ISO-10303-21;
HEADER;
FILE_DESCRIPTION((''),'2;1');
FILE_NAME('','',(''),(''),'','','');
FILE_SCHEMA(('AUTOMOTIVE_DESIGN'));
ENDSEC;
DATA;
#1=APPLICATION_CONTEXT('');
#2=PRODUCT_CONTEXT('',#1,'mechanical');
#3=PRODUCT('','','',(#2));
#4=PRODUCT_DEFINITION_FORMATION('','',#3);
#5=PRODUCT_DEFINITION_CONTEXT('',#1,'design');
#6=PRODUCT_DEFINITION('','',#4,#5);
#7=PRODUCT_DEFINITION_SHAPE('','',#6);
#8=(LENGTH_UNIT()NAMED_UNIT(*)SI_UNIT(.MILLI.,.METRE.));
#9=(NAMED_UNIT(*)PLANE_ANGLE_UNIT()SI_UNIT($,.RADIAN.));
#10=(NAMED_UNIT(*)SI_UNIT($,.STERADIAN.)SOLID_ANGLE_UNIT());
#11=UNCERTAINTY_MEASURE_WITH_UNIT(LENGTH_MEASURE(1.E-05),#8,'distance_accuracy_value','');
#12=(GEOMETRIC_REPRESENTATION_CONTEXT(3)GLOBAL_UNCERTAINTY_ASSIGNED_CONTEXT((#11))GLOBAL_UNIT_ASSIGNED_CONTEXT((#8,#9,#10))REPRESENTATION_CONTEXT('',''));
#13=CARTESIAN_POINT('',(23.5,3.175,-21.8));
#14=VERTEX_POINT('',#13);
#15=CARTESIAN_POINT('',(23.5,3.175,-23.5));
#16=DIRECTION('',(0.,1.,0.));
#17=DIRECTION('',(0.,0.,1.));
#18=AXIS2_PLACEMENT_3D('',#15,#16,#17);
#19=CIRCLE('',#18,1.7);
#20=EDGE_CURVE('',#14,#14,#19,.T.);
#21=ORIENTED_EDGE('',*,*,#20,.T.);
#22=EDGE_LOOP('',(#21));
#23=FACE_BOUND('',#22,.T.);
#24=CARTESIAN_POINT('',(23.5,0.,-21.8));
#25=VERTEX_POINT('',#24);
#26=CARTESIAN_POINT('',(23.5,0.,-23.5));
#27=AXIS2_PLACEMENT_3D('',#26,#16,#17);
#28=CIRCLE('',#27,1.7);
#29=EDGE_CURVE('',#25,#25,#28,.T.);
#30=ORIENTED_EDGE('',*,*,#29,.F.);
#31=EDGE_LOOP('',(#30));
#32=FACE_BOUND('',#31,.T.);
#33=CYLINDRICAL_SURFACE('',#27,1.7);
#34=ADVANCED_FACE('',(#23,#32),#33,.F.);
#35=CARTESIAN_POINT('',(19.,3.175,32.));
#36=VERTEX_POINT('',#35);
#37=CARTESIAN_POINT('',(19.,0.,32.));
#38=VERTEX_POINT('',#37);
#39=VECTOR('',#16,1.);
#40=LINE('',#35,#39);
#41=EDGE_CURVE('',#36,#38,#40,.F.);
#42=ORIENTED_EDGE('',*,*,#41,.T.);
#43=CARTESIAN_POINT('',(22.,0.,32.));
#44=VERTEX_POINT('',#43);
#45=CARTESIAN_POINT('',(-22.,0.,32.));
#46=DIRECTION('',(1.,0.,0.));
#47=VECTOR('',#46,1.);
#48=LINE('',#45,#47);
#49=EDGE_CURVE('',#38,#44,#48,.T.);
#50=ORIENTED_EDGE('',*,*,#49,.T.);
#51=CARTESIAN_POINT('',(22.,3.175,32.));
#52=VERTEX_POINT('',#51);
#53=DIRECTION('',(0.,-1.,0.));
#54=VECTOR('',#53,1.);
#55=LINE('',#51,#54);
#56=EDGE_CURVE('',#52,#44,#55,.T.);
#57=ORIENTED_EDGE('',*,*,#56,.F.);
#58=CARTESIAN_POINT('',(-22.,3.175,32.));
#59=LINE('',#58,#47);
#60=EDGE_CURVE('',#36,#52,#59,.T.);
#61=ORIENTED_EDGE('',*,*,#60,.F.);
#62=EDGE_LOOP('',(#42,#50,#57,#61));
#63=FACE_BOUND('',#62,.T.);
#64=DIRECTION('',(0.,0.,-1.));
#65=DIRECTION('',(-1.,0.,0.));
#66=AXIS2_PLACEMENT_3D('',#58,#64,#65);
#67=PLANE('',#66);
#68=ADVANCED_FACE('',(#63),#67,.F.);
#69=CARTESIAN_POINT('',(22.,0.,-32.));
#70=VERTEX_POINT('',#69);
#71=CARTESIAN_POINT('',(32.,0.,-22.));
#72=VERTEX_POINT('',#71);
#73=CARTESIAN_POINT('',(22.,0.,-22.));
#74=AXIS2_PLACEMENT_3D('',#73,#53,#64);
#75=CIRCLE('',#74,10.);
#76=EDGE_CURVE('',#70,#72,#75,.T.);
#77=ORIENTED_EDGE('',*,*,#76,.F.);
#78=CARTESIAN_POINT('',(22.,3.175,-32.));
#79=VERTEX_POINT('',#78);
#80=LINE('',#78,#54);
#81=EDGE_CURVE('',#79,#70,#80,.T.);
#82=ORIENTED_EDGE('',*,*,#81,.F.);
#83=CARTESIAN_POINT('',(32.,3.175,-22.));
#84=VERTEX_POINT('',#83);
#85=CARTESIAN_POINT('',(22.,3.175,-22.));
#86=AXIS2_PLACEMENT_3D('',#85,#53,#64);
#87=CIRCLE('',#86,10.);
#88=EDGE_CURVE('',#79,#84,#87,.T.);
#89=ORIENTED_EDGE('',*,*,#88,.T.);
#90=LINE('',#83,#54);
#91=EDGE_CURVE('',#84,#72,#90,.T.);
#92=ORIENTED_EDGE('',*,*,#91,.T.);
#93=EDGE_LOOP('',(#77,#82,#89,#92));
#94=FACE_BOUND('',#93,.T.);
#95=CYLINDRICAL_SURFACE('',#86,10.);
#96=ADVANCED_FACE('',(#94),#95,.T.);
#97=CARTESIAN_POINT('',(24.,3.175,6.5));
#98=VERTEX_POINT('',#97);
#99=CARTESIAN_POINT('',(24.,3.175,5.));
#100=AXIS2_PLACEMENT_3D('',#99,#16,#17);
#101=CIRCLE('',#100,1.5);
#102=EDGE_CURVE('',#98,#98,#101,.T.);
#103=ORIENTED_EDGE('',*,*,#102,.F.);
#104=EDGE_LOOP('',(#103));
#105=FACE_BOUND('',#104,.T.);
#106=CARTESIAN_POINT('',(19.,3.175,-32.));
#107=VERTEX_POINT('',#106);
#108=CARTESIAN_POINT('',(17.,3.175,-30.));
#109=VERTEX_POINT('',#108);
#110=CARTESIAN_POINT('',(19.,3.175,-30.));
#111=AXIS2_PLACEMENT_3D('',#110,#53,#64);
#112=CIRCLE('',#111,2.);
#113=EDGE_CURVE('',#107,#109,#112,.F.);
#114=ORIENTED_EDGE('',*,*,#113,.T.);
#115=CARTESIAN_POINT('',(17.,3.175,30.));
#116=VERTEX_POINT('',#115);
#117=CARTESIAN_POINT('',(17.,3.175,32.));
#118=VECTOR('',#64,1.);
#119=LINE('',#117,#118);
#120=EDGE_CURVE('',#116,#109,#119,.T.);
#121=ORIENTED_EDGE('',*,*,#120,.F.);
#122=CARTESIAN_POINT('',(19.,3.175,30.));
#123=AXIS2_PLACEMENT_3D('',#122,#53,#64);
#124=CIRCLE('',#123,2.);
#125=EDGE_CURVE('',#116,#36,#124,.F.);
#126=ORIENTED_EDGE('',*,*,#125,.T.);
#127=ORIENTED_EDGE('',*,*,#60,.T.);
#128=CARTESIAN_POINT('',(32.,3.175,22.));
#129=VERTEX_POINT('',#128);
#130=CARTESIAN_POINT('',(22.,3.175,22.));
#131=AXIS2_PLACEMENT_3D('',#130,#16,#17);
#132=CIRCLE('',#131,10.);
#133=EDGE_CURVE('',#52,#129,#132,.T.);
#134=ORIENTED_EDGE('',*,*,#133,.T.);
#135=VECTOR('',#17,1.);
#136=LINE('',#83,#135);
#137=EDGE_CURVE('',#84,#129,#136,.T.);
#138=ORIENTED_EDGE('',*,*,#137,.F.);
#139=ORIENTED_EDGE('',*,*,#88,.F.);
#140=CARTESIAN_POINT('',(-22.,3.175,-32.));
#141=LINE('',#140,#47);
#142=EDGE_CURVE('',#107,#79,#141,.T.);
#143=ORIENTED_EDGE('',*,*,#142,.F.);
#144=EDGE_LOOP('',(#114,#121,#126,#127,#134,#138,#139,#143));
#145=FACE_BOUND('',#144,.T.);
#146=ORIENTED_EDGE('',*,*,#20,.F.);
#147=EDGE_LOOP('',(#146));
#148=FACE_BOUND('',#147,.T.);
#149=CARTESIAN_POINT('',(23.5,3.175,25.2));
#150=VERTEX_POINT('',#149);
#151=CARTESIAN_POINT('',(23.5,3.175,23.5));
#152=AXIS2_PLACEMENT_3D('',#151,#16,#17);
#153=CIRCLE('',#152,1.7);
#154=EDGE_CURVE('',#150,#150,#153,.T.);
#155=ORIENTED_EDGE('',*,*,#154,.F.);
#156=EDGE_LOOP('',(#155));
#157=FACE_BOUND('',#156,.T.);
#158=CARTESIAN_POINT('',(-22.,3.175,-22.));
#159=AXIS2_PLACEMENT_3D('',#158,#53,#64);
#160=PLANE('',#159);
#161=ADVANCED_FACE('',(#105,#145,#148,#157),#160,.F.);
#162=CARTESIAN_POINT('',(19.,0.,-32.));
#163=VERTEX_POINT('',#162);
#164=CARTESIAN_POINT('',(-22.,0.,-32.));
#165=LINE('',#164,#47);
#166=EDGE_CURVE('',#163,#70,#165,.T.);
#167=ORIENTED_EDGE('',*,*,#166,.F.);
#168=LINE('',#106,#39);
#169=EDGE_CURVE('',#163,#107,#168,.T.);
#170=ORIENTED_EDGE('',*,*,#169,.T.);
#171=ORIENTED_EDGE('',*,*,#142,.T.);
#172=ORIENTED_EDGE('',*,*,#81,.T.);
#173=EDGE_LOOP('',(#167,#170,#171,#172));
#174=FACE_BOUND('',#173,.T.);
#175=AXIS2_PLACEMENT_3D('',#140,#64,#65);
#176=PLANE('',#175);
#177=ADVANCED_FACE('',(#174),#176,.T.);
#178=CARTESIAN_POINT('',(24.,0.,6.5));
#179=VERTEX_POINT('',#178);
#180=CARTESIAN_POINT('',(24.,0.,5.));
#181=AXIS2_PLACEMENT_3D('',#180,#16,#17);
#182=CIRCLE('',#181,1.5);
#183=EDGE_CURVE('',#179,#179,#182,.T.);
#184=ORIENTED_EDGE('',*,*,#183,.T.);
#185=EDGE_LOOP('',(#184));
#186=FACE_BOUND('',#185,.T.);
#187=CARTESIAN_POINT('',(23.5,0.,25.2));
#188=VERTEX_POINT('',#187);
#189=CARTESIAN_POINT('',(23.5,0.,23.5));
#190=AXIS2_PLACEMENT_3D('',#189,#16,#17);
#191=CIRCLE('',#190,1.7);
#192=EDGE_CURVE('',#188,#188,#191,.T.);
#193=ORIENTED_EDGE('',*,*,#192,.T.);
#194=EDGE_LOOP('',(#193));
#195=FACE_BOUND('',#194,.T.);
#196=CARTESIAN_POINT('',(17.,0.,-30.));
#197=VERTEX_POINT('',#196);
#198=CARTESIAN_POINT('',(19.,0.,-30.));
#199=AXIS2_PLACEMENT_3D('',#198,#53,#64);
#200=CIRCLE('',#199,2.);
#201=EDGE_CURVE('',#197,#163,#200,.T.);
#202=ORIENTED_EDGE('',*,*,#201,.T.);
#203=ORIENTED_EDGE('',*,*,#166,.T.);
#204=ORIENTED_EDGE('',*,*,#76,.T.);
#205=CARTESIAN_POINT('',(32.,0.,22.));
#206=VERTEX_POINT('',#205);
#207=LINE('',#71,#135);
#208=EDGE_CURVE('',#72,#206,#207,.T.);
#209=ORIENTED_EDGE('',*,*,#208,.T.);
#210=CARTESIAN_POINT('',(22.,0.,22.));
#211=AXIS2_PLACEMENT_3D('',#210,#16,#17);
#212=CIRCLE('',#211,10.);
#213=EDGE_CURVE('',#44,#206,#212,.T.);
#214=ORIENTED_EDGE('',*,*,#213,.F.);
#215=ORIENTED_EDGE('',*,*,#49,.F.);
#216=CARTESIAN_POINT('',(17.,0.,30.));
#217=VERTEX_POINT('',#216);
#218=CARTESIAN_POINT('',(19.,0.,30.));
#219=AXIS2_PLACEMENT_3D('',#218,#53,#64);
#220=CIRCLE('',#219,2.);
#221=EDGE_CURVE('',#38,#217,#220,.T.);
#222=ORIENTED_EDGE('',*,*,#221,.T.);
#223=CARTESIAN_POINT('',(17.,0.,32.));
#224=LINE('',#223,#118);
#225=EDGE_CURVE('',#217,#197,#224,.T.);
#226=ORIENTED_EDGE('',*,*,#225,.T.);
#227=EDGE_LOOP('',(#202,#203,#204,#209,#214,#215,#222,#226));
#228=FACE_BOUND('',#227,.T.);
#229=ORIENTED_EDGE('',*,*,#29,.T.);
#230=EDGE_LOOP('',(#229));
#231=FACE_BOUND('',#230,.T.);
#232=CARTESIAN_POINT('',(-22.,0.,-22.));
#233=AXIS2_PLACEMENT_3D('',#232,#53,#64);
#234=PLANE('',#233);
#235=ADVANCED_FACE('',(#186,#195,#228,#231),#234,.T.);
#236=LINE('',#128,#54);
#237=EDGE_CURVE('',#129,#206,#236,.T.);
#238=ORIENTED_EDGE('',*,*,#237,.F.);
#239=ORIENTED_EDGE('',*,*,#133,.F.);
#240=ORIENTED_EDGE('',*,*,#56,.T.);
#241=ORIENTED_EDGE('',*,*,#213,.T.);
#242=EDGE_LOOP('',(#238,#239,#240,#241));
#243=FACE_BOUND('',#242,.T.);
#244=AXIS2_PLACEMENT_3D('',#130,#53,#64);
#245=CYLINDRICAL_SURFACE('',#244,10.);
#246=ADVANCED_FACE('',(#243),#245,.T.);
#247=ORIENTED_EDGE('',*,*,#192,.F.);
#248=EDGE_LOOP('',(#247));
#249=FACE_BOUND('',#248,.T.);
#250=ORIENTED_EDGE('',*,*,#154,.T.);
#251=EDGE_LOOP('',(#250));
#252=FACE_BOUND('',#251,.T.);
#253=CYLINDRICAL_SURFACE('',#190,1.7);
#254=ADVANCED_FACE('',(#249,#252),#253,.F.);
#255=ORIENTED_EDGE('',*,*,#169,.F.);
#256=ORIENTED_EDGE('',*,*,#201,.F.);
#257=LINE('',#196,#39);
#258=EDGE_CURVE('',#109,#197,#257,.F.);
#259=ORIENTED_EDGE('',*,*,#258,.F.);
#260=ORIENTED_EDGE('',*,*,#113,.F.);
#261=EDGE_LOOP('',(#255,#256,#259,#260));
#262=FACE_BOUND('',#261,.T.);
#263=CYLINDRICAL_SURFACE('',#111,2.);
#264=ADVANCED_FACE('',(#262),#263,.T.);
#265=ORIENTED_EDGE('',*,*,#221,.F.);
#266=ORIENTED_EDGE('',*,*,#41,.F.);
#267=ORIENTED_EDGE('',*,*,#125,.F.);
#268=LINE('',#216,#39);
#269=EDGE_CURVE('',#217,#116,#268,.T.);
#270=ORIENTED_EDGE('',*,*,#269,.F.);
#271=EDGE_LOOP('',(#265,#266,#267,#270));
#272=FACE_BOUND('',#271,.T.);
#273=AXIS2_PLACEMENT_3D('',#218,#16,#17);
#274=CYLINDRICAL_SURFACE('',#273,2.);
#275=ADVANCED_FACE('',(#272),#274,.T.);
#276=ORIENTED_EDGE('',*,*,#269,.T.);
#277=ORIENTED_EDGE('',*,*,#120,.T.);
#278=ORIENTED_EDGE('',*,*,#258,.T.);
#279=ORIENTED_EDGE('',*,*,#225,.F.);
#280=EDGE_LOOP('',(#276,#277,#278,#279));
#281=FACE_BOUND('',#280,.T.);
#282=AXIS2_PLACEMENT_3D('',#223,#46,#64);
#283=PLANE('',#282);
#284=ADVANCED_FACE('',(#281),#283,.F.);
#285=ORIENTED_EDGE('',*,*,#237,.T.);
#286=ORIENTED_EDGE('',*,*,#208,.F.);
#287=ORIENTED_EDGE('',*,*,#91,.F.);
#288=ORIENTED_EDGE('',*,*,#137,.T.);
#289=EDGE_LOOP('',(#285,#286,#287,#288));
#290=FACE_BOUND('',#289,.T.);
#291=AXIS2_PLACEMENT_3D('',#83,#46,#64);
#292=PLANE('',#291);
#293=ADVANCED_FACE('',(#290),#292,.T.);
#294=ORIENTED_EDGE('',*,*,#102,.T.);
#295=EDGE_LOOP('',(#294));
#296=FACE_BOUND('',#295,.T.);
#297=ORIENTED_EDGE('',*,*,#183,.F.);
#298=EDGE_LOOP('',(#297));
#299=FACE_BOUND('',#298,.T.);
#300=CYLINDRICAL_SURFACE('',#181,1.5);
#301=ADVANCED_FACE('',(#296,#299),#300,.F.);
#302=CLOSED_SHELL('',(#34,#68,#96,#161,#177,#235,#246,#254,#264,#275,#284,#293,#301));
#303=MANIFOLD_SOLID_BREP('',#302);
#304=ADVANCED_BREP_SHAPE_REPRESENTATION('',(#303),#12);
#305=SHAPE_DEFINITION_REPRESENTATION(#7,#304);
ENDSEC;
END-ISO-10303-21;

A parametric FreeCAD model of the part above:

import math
import FreeCAD as App
import Part
import Sketcher

V = App.Vector
Q = App.Units.Quantity


def edges_at(feature, points):
    """Names of the edges that pass closest to the given points."""
    edges = feature.Shape.Edges
    near = lambda p: min(range(len(edges)), key=lambda i: edges[i].distToShape(Part.Vertex(*p))[0])
    return sorted({f"Edge{near(p) + 1}" for p in points})


def add_polygon(sketch, points):
    """Adds a closed chain of lines whose ends are joined by coincident constraints."""
    first, n = sketch.GeometryCount, len(points)
    for a, b in zip(points, points[1:] + points[:1]):
        sketch.addGeometry(Part.LineSegment(App.Vector(*a, 0), App.Vector(*b, 0)), False)
    for i in range(n):
        sketch.addConstraint(Sketcher.Constraint("Coincident", first + i, 2, first + (i + 1) % n, 1))

doc = App.newDocument("Part")
body = doc.addObject("PartDesign::Body", "Body")

sketch1 = body.newObject("Sketcher::SketchObject", "Sketch")
sketch1.AttachmentSupport = (doc.getObject("XZ_Plane"), [""])
sketch1.MapMode = "FlatFace"
sketch1.addGeometry([
    Part.LineSegment(V(22, -32, 0), V(-22, -32, 0)),
    Part.ArcOfCircle(Part.Circle(V(-22, -22, 0), V(0, 0, 1), 10), math.radians(180), math.radians(270)),
    Part.LineSegment(V(-32, -22, 0), V(-32, 22, 0)),
    Part.ArcOfCircle(Part.Circle(V(-22, 22, 0), V(0, 0, 1), 10), math.radians(90), math.radians(180)),
    Part.LineSegment(V(-22, 32, 0), V(22, 32, 0)),
    Part.ArcOfCircle(Part.Circle(V(22, 22, 0), V(0, 0, 1), 10), math.radians(0), math.radians(90)),
    Part.LineSegment(V(32, 22, 0), V(32, -22, 0)),
    Part.ArcOfCircle(Part.Circle(V(22, -22, 0), V(0, 0, 1), 10), math.radians(-90), math.radians(0)),
], False)
sketch1.addConstraint([
    Sketcher.Constraint("Tangent", 0, 2, 1, 2),
    Sketcher.Constraint("Tangent", 1, 1, 2, 1),
    Sketcher.Constraint("Tangent", 2, 2, 3, 2),
    Sketcher.Constraint("Tangent", 3, 1, 4, 1),
    Sketcher.Constraint("Tangent", 4, 2, 5, 2),
    Sketcher.Constraint("Tangent", 5, 1, 6, 1),
    Sketcher.Constraint("Tangent", 6, 2, 7, 2),
    Sketcher.Constraint("Tangent", 7, 1, 0, 1),
    Sketcher.Constraint("Horizontal", 0),
    Sketcher.Constraint("Vertical", 2),
    Sketcher.Constraint("Horizontal", 4),
    Sketcher.Constraint("Vertical", 6),
    Sketcher.Constraint("Equal", 1, 3),
    Sketcher.Constraint("Equal", 3, 5),
    Sketcher.Constraint("Equal", 5, 7),
    Sketcher.Constraint("Symmetric", 1, 3, 5, 3, -1, 1),
    Sketcher.Constraint("Equal", 4, 2),
    Sketcher.Constraint("Radius", 1, Q("10 mm")),
    Sketcher.Constraint("DistanceX", 0, 2, 0, 1, Q("44 mm")),
])
pad1 = body.newObject("PartDesign::Pad", "Pad")
pad1.Profile = sketch1
pad1.Length = 3.175
pad1.Reversed = True

sketch2 = body.newObject("Sketcher::SketchObject", "Sketch001")
sketch2.AttachmentSupport = (doc.getObject("XZ_Plane"), [""])
sketch2.MapMode = "FlatFace"
sketch2.AttachmentOffset = App.Placement(V(0, 0, -3.175), App.Rotation())
sketch2.addGeometry([
    Part.Circle(V(-23.5, -23.5, 0), V(0, 0, 1), 1.7),
    Part.Circle(V(23.5, -23.5, 0), V(0, 0, 1), 1.7),
    Part.Circle(V(23.5, 23.5, 0), V(0, 0, 1), 1.7),
    Part.Circle(V(-23.5, 23.5, 0), V(0, 0, 1), 1.7),
], False)
sketch2.addConstraint([
    Sketcher.Constraint("Equal", 0, 1),
    Sketcher.Constraint("Equal", 1, 2),
    Sketcher.Constraint("Equal", 2, 3),
    Sketcher.Constraint("Symmetric", 0, 3, 2, 3, -1, 1),
    Sketcher.Constraint("Symmetric", 1, 3, 3, 3, -1, 1),
    Sketcher.Constraint("Symmetric", 0, 3, 1, 3, -2),
    Sketcher.Constraint("Diameter", 0, Q("3.4 mm")),
    Sketcher.Constraint("DistanceX", 0, 3, 1, 3, Q("47 mm")),
    Sketcher.Constraint("DistanceY", 1, 3, 2, 3, Q("47 mm")),
])
pocket1 = body.newObject("PartDesign::Pocket", "Pocket")
pocket1.Profile = sketch2
pocket1.Length = 3.175
pocket1.Reversed = True

sketch3 = body.newObject("Sketcher::SketchObject", "Sketch002")
sketch3.AttachmentSupport = (doc.getObject("XZ_Plane"), [""])
sketch3.MapMode = "FlatFace"
sketch3.AttachmentOffset = App.Placement(V(0, 0, -3.175), App.Rotation())
sketch3.addGeometry([
    Part.Circle(V(24, 5, 0), V(0, 0, 1), 1.5),
    Part.Circle(V(-24, 5, 0), V(0, 0, 1), 1.5),
], False)
sketch3.addConstraint([
    Sketcher.Constraint("Equal", 0, 1),
    Sketcher.Constraint("Symmetric", 0, 3, 1, 3, -2),
    Sketcher.Constraint("Diameter", 0, Q("3 mm")),
    Sketcher.Constraint("DistanceX", -1, 1, 0, 3, Q("24 mm")),
    Sketcher.Constraint("DistanceY", -1, 1, 0, 3, Q("5 mm")),
])
pocket2 = body.newObject("PartDesign::Pocket", "Pocket001")
pocket2.Profile = sketch3
pocket2.Length = 3.175
pocket2.Reversed = True

sketch4 = body.newObject("Sketcher::SketchObject", "Sketch003")
sketch4.AttachmentSupport = (doc.getObject("XZ_Plane"), [""])
sketch4.MapMode = "FlatFace"
sketch4.AttachmentOffset = App.Placement(V(0, 0, -3.175), App.Rotation())
add_polygon(sketch4, [(-44.765089, -32), (-44.765089, 32), (17, 32), (17, -32)])
sketch4.addConstraint([
    Sketcher.Constraint("Vertical", 0),
    Sketcher.Constraint("Horizontal", 1),
    Sketcher.Constraint("Vertical", 2),
    Sketcher.Constraint("Horizontal", 3),
    Sketcher.Constraint("DistanceY", 0, 1, 0, 2, Q("64 mm")),
    Sketcher.Constraint("DistanceY", -1, 1, 0, 2, Q("32 mm")),
    Sketcher.Constraint("DistanceX", -1, 1, 1, 2, Q("17 mm")),
    Sketcher.Constraint("DistanceX", 1, 1, 1, 2, Q("61.765089 mm")),
])
pocket3 = body.newObject("PartDesign::Pocket", "Pocket002")
pocket3.Profile = sketch4
pocket3.Length = 3.175
pocket3.Reversed = True
doc.recompute()

fillet = body.newObject("PartDesign::Fillet", "Fillet")
fillet.Base = (pocket3, edges_at(pocket3, [(17, 1.587, 32), (17, 1.587, -32)]))
fillet.Radius = 2

doc.recompute()
